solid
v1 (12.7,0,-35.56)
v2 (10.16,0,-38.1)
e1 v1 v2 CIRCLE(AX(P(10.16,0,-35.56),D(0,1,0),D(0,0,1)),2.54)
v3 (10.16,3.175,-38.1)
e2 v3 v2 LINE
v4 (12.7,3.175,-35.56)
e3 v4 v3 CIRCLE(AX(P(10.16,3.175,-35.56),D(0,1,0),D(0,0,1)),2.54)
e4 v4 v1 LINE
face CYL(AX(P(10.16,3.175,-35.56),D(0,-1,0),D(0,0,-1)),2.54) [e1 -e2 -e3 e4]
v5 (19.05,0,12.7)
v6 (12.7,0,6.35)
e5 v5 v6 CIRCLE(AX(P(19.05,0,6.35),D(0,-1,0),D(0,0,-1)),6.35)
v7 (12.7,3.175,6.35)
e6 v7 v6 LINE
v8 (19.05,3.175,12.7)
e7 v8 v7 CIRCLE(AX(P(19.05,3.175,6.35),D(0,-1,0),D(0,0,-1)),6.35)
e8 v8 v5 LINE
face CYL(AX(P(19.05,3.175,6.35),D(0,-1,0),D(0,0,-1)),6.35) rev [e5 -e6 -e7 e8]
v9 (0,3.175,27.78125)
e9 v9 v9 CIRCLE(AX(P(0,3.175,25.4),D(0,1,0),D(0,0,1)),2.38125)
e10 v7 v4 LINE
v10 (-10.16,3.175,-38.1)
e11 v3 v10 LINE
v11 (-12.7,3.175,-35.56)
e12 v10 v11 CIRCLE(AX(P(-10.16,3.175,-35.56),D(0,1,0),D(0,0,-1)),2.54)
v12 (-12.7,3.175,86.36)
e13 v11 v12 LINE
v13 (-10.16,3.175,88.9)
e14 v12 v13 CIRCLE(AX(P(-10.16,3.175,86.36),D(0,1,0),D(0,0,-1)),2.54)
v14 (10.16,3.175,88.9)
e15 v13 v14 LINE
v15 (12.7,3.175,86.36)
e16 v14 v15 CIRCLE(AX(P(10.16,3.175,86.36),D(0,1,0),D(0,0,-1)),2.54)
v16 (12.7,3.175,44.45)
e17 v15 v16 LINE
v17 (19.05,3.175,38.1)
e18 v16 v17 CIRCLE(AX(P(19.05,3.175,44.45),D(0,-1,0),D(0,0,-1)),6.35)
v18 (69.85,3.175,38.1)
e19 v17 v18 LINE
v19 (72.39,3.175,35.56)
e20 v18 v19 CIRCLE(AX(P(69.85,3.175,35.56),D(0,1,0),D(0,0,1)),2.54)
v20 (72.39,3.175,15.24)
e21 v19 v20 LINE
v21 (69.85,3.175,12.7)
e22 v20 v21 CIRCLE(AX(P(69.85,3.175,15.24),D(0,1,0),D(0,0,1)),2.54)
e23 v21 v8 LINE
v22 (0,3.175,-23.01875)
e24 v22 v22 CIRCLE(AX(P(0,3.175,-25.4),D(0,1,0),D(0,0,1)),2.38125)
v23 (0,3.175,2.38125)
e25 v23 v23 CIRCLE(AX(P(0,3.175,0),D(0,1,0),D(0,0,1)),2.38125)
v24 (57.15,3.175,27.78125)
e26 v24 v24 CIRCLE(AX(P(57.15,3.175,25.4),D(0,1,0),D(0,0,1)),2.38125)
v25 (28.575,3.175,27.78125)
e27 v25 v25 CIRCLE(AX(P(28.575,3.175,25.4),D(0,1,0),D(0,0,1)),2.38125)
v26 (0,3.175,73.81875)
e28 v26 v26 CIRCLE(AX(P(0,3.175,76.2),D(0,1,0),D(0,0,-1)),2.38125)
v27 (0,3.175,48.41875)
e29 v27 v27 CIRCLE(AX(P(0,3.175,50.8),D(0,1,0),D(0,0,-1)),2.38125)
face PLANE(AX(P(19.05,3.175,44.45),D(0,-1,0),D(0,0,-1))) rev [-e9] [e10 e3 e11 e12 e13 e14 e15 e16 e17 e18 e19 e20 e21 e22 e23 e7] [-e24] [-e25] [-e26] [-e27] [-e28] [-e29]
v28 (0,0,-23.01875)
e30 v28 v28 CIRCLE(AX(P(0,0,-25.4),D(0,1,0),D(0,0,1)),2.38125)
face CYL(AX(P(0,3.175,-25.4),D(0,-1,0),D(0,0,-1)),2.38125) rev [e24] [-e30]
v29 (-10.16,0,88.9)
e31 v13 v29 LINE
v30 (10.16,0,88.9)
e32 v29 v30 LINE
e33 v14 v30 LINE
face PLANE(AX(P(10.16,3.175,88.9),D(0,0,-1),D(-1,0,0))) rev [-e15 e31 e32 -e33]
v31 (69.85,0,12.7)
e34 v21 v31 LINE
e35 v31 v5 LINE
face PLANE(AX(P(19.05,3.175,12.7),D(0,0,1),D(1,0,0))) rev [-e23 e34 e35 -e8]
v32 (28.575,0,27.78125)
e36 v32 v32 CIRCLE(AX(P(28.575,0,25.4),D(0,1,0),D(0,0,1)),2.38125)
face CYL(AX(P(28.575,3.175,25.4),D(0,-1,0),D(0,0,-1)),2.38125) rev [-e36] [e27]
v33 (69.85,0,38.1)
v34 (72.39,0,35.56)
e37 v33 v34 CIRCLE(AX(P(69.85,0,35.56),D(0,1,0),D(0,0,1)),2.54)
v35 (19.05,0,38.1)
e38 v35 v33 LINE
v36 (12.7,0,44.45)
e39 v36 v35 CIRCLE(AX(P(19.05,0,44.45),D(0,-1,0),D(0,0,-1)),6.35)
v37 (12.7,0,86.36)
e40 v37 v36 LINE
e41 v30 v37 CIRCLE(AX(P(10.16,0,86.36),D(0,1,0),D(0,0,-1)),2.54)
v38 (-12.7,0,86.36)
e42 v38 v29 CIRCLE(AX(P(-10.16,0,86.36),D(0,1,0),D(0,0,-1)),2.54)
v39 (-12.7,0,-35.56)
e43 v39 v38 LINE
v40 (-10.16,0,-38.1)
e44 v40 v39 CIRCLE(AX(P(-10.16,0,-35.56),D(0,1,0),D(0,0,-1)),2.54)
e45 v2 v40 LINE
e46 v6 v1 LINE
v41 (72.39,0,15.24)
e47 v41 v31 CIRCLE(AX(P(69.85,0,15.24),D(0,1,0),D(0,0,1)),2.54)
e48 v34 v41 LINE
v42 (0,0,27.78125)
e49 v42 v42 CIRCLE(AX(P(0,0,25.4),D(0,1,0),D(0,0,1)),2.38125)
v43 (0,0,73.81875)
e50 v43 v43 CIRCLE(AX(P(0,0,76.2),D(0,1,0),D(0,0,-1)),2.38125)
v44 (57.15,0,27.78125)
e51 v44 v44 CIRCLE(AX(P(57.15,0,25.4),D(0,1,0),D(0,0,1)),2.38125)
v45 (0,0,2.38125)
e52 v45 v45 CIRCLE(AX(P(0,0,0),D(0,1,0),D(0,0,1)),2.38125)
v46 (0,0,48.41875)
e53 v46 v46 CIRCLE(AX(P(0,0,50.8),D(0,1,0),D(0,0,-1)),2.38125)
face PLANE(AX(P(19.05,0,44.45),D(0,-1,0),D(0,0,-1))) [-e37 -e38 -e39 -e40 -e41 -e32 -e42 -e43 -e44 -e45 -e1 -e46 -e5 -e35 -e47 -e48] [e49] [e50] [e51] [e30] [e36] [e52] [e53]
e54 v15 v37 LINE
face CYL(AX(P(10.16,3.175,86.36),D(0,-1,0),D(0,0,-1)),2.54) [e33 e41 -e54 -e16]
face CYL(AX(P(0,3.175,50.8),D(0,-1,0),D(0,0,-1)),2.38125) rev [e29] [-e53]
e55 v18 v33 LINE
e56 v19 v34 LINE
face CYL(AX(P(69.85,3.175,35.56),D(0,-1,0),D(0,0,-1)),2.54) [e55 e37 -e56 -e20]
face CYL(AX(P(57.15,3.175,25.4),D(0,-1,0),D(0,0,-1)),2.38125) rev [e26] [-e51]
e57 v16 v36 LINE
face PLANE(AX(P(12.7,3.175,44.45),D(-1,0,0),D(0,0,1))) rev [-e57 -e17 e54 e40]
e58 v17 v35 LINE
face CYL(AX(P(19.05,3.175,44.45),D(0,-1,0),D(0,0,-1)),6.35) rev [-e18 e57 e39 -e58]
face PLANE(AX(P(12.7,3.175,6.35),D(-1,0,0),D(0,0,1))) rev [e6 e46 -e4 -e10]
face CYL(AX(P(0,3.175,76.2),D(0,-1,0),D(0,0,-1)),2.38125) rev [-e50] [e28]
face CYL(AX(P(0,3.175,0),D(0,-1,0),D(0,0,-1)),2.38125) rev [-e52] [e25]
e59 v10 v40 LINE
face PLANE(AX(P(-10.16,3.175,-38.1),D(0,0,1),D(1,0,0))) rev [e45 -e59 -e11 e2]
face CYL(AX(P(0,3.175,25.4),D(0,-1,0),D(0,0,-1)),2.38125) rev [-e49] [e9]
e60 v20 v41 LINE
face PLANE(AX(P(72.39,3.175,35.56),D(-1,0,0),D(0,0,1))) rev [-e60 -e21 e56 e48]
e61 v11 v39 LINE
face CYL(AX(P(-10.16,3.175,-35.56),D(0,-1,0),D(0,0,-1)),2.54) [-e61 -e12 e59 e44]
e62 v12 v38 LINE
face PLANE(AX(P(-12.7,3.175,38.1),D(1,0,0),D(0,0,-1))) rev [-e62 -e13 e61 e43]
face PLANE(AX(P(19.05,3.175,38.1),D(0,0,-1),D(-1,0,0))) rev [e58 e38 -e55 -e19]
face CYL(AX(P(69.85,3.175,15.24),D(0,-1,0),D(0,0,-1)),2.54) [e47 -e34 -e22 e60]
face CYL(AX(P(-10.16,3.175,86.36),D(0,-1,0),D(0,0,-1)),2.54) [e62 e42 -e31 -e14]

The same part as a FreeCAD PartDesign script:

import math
import FreeCAD as App
import Part
import Sketcher
from FreeCAD import Vector
Q = App.Units.Quantity

doc = App.newDocument("Part")
body = doc.addObject("PartDesign::Body", "Body")

sketch1 = body.newObject("Sketcher::SketchObject", "Sketch")
sketch1.AttachmentSupport = (doc.getObject("XZ_Plane"), [""])
sketch1.MapMode = "FlatFace"
sketch1.addGeometry(Part.ArcOfCircle(Part.Circle(Vector(-10.2, -35.6, 0), Vector(0, 0, 1), 2.5), math.radians(-180), math.radians(-90)), False)
sketch1.addGeometry(Part.LineSegment(Vector(-12.7, -35.6, 0), Vector(-12.7, 86.4, 0)), False)
sketch1.addGeometry(Part.ArcOfCircle(Part.Circle(Vector(-10.2, 86.4, 0), Vector(0, 0, 1), 2.5), math.radians(90), math.radians(180)), False)
sketch1.addGeometry(Part.LineSegment(Vector(-10.2, 88.9, 0), Vector(10.2, 88.9, 0)), False)
sketch1.addGeometry(Part.ArcOfCircle(Part.Circle(Vector(10.2, 86.4, 0), Vector(0, 0, 1), 2.5), math.radians(0), math.radians(90)), False)
sketch1.addGeometry(Part.LineSegment(Vector(12.7, 86.4, 0), Vector(12.7, 44.5, 0)), False)
sketch1.addGeometry(Part.ArcOfCircle(Part.Circle(Vector(19, 44.4, 0), Vector(0, 0, 1), 6.3), math.radians(180), math.radians(270)), False)
sketch1.addGeometry(Part.LineSegment(Vector(19.1, 38.1, 0), Vector(69.8, 38.1, 0)), False)
sketch1.addGeometry(Part.ArcOfCircle(Part.Circle(Vector(69.8, 35.6, 0), Vector(0, 0, 1), 2.5), math.radians(0), math.radians(90)), False)
sketch1.addGeometry(Part.LineSegment(Vector(72.4, 35.6, 0), Vector(72.4, 15.2, 0)), False)
sketch1.addGeometry(Part.ArcOfCircle(Part.Circle(Vector(69.8, 15.2, 0), Vector(0, 0, 1), 2.5), math.radians(-90), math.radians(0)), False)
sketch1.addGeometry(Part.LineSegment(Vector(69.8, 12.7, 0), Vector(19.1, 12.7, 0)), False)
sketch1.addGeometry(Part.ArcOfCircle(Part.Circle(Vector(19, 6.4, 0), Vector(0, 0, 1), 6.3), math.radians(90), math.radians(180)), False)
sketch1.addGeometry(Part.LineSegment(Vector(12.7, 6.3, 0), Vector(12.7, -35.6, 0)), False)
sketch1.addGeometry(Part.ArcOfCircle(Part.Circle(Vector(10.2, -35.6, 0), Vector(0, 0, 1), 2.5), math.radians(-90), math.radians(0)), False)
sketch1.addGeometry(Part.LineSegment(Vector(10.2, -38.1, 0), Vector(-10.2, -38.1, 0)), False)
sketch1.addGeometry(Part.Circle(Vector(0, 76.2, 0), Vector(0, 0, 1), 2.4), False)
sketch1.addGeometry(Part.Circle(Vector(0, 50.8, 0), Vector(0, 0, 1), 2.4), False)
sketch1.addGeometry(Part.Circle(Vector(57.1, 25.4, 0), Vector(0, 0, 1), 2.4), False)
sketch1.addGeometry(Part.Circle(Vector(28.6, 25.4, 0), Vector(0, 0, 1), 2.4), False)
sketch1.addGeometry(Part.Circle(Vector(0, 25.4, 0), Vector(0, 0, 1), 2.4), False)
sketch1.addGeometry(Part.Circle(Vector(0, 0, 0), Vector(0, 0, 1), 2.4), False)
sketch1.addGeometry(Part.Circle(Vector(0, -25.4, 0), Vector(0, 0, 1), 2.4), False)
sketch1.addConstraint(Sketcher.Constraint("Tangent", 0, 1, 1, 1))
sketch1.addConstraint(Sketcher.Constraint("Tangent", 1, 2, 2, 2))
sketch1.addConstraint(Sketcher.Constraint("Tangent", 2, 1, 3, 1))
sketch1.addConstraint(Sketcher.Constraint("Tangent", 3, 2, 4, 2))
sketch1.addConstraint(Sketcher.Constraint("Tangent", 4, 1, 5, 1))
sketch1.addConstraint(Sketcher.Constraint("Tangent", 5, 2, 6, 1))
sketch1.addConstraint(Sketcher.Constraint("Tangent", 6, 2, 7, 1))
sketch1.addConstraint(Sketcher.Constraint("Tangent", 7, 2, 8, 2))
sketch1.addConstraint(Sketcher.Constraint("Tangent", 8, 1, 9, 1))
sketch1.addConstraint(Sketcher.Constraint("Tangent", 9, 2, 10, 2))
sketch1.addConstraint(Sketcher.Constraint("Tangent", 10, 1, 11, 1))
sketch1.addConstraint(Sketcher.Constraint("Tangent", 11, 2, 12, 1))
sketch1.addConstraint(Sketcher.Constraint("Tangent", 12, 2, 13, 1))
sketch1.addConstraint(Sketcher.Constraint("Tangent", 13, 2, 14, 2))
sketch1.addConstraint(Sketcher.Constraint("Tangent", 14, 1, 15, 1))
sketch1.addConstraint(Sketcher.Constraint("Tangent", 15, 2, 0, 2))
sketch1.addConstraint(Sketcher.Constraint("Vertical", 1))
sketch1.addConstraint(Sketcher.Constraint("Horizontal", 3))
sketch1.addConstraint(Sketcher.Constraint("Vertical", 5))
sketch1.addConstraint(Sketcher.Constraint("Horizontal", 7))
sketch1.addConstraint(Sketcher.Constraint("Vertical", 9))
sketch1.addConstraint(Sketcher.Constraint("Horizontal", 11))
sketch1.addConstraint(Sketcher.Constraint("Vertical", 13))
sketch1.addConstraint(Sketcher.Constraint("Horizontal", 15))
sketch1.addConstraint(Sketcher.Constraint("Coincident", 21, 3, -1, 1))
sketch1.addConstraint(Sketcher.Constraint("Equal", 0, 2))
sketch1.addConstraint(Sketcher.Constraint("Equal", 2, 4))
sketch1.addConstraint(Sketcher.Constraint("Equal", 4, 8))
sketch1.addConstraint(Sketcher.Constraint("Equal", 8, 10))
sketch1.addConstraint(Sketcher.Constraint("Equal", 6, 12))
sketch1.addConstraint(Sketcher.Constraint("Equal", 10, 14))
sketch1.addConstraint(Sketcher.Constraint("Equal", 16, 17))
sketch1.addConstraint(Sketcher.Constraint("Equal", 17, 18))
sketch1.addConstraint(Sketcher.Constraint("Equal", 18, 19))
sketch1.addConstraint(Sketcher.Constraint("Equal", 19, 20))
sketch1.addConstraint(Sketcher.Constraint("Equal", 20, 21))
sketch1.addConstraint(Sketcher.Constraint("Equal", 21, 22))
sketch1.addConstraint(Sketcher.Constraint("Symmetric", 20, 3, 22, 3, -1, 1))
sketch1.addConstraint(Sketcher.Constraint("PointOnObject", 16, 3, -2))
sketch1.addConstraint(Sketcher.Constraint("PointOnObject", 17, 3, -2))
sketch1.addConstraint(Sketcher.Constraint("PointOnObject", 20, 3, -2))
sketch1.addConstraint(Sketcher.Constraint("Horizontal", 18, 3, 19, 3))
sketch1.addConstraint(Sketcher.Constraint("Horizontal", 19, 3, 20, 3))
sketch1.addConstraint(Sketcher.Constraint("Vertical", 6, 3, 12, 3))
sketch1.addConstraint(Sketcher.Constraint("Equal", 15, 9))
sketch1.addConstraint(Sketcher.Constraint("Equal", 5, 13))
sketch1.addConstraint(Sketcher.Constraint("Radius", 0, Q("0.1 in")))
sketch1.addConstraint(Sketcher.Constraint("DistanceX", 7, 1, 7, 2, Q("2 in")))
sketch1.addConstraint(Sketcher.Constraint("Radius", 6, Q("0.25 in")))
sketch1.addConstraint(Sketcher.Constraint("Diameter", 16, Q("0.1875 in")))
sketch1.addConstraint(Sketcher.Constraint("DistanceX", 3, 1, 3, 2, Q("0.8 in")))
sketch1.addConstraint(Sketcher.Constraint("DistanceY", 1, 1, 1, 2, Q("4.8 in")))
sketch1.addConstraint(Sketcher.Constraint("DistanceY", -1, 1, 16, 3, Q("3 in")))
sketch1.addConstraint(Sketcher.Constraint("DistanceY", -1, 1, 17, 3, Q("2 in")))
sketch1.addConstraint(Sketcher.Constraint("DistanceY", -1, 1, 18, 3, Q("1 in")))
sketch1.addConstraint(Sketcher.Constraint("DistanceX", 0, 3, -1, 1, Q("0.4 in")))
sketch1.addConstraint(Sketcher.Constraint("DistanceY", 0, 3, -1, 1, Q("1.4 in")))
sketch1.addConstraint(Sketcher.Constraint("DistanceX", 18, 3, 8, 3, Q("0.5 in")))
sketch1.addConstraint(Sketcher.Constraint("DistanceX", -1, 1, 19, 3, Q("1.125 in")))
pad1 = body.newObject("PartDesign::Pad", "Pad")
pad1.Profile = sketch1
pad1.Length = Q("0.125 in")
pad1.Reversed = True

doc.recompute()
